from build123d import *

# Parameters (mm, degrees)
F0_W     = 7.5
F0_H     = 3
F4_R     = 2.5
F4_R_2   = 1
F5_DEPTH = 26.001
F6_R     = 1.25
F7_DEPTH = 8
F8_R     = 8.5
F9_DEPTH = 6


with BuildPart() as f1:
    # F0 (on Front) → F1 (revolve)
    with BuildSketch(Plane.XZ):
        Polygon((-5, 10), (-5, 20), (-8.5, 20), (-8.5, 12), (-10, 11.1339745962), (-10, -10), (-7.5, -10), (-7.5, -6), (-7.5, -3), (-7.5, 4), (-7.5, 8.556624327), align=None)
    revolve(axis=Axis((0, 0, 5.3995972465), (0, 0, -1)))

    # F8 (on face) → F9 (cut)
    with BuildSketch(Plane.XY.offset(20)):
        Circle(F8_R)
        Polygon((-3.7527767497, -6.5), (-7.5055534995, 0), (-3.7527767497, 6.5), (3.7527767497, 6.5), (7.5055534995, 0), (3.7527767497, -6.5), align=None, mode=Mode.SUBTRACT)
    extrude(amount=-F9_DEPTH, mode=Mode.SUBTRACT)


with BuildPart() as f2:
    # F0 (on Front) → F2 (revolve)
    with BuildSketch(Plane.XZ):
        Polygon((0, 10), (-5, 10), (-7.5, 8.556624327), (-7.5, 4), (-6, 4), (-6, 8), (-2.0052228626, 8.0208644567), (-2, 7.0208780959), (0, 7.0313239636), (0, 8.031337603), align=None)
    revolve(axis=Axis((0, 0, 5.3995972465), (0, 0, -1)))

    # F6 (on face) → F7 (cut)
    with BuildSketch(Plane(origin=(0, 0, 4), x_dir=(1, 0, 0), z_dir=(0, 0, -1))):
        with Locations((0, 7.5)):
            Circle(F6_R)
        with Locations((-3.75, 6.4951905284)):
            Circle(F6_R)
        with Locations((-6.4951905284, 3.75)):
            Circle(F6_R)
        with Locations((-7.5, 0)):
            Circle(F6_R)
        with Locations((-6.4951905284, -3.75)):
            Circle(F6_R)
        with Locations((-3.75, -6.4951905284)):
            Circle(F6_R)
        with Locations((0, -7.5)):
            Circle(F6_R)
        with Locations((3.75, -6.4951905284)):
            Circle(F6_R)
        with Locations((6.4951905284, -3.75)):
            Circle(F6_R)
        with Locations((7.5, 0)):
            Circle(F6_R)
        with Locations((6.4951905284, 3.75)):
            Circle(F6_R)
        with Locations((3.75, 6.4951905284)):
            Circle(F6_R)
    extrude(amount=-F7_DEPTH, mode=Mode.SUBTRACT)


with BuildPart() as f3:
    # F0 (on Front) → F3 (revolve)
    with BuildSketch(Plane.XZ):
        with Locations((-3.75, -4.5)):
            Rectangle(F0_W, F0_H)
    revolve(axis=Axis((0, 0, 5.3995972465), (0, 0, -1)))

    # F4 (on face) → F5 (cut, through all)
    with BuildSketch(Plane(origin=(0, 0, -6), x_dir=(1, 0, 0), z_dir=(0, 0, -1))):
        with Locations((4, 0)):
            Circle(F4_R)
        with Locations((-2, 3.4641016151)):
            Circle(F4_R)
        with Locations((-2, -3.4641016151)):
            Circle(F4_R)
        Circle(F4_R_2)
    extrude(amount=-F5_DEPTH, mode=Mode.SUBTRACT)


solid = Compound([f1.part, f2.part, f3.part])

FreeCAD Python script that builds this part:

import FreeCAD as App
import Part
import Sketcher
Q = App.Units.Quantity


def add_polygon(sketch, points):
    """Adds a closed chain of lines whose ends are joined by coincident constraints."""
    first, n = sketch.GeometryCount, len(points)
    for a, b in zip(points, points[1:] + points[:1]):
        sketch.addGeometry(Part.LineSegment(App.Vector(*a, 0), App.Vector(*b, 0)), False)
    for i in range(n):
        sketch.addConstraint(Sketcher.Constraint("Coincident", first + i, 2, first + (i + 1) % n, 1))

doc = App.newDocument("Part")
body = doc.addObject("PartDesign::Body", "Body")

# Sketch on XZ plane
sketch1 = body.newObject("Sketcher::SketchObject", "Sketch")
sketch1.AttachmentSupport = (doc.getObject("XZ_Plane"), [""])
sketch1.MapMode = "FlatFace"
add_polygon(sketch1, [(-5, 10), (-5, 20), (-8.5, 20), (-8.5, 12), (-10, 11.1), (-10, -10), (-7.5, -10), (-7.5, 8.6)])  # lines 0-7
sketch1.addConstraint([
    Sketcher.Constraint("Vertical", 0),
    Sketcher.Constraint("Horizontal", 1),
    Sketcher.Constraint("Vertical", 2),
    Sketcher.Constraint("Vertical", 4),
    Sketcher.Constraint("Horizontal", 5),
    Sketcher.Constraint("Vertical", 6),
    Sketcher.Constraint("Parallel", 3, 7),
    Sketcher.Constraint("DistanceY", 0, 1, 0, 2, Q("10 mm")),
    Sketcher.Constraint("DistanceY", 2, 2, 2, 1, Q("8 mm")),
    Sketcher.Constraint("Angle", 3, Q("-150 deg")),
    Sketcher.Constraint("DistanceX", 1, 2, 1, 1, Q("3.5 mm")),
    Sketcher.Constraint("DistanceX", 5, 1, 5, 2, Q("2.5 mm")),
    Sketcher.Constraint("DistanceX", 0, 2, -1, 1, Q("5 mm")),
    Sketcher.Constraint("DistanceY", -1, 1, 0, 2, Q("20 mm")),
    Sketcher.Constraint("DistanceX", 3, 2, -1, 1, Q("10 mm")),
    Sketcher.Constraint("DistanceY", 4, 2, -1, 1, Q("10 mm")),
])
revolution = body.newObject("PartDesign::Revolution", "Revolution")
revolution.Profile = sketch1
revolution.ReferenceAxis = (sketch1, ["V_Axis"])
revolution.Angle = 360

# Sketch on XY plane
sketch2 = body.newObject("Sketcher::SketchObject", "Sketch001")
sketch2.AttachmentSupport = (doc.getObject("XY_Plane"), [""])
sketch2.MapMode = "FlatFace"
sketch2.AttachmentOffset = App.Placement(App.Vector(0, 0, 20), App.Rotation())
sketch2.addGeometry(Part.Circle(App.Vector(0, 0, 0), App.Vector(0, 0, 1), 8), False)  # 0
add_polygon(sketch2, [(4, -6), (-4, -6), (-8, 0), (-4, 6), (4, 6), (8, 0)])  # lines 1-6
sketch2.addConstraint([
    Sketcher.Constraint("Horizontal", 1),
    Sketcher.Constraint("Horizontal", 4),
    Sketcher.Constraint("Coincident", 0, 3, -1, 1),
    Sketcher.Constraint("Symmetric", 1, 2, 4, 2, -1, 1),
    Sketcher.Constraint("Symmetric", 2, 2, 5, 2, -1, 1),
    Sketcher.Constraint("PointOnObject", 2, 2, -1),
    Sketcher.Constraint("Parallel", 3, 6),
    Sketcher.Constraint("Vertical", 1, 2, 3, 2),
    Sketcher.Constraint("Diameter", 0, Q("17 mm")),
    Sketcher.Constraint("Angle", 2, Q("120 deg")),
    Sketcher.Constraint("DistanceY", 1, 2, 3, 2, Q("13 mm")),
    Sketcher.Constraint("DistanceX", 1, 2, 1, 1, Q("7.505554 mm")),
])
pocket1 = body.newObject("PartDesign::Pocket", "Pocket")
pocket1.Profile = sketch2
pocket1.Length = 6
body2 = doc.addObject("PartDesign::Body", "Body001")

# Sketch on XZ plane
sketch3 = body2.newObject("Sketcher::SketchObject", "Sketch002")
sketch3.AttachmentSupport = (doc.getObject("XZ_Plane001"), [""])
sketch3.MapMode = "FlatFace"
add_polygon(sketch3, [(0, 10), (-5, 10), (-7.5, 8.6), (-7.5, 4), (-6, 4), (-6, 8), (-2, 8), (-2, 7), (0, 7)])  # lines 0-8
sketch3.addConstraint([
    Sketcher.Constraint("Horizontal", 0),
    Sketcher.Constraint("Vertical", 2),
    Sketcher.Constraint("Horizontal", 3),
    Sketcher.Constraint("Vertical", 4),
    Sketcher.Constraint("Vertical", 8),
    Sketcher.Constraint("PointOnObject", 7, 2, -2),
    Sketcher.Constraint("Perpendicular", 5, 6),
    Sketcher.Constraint("Perpendicular", 6, 7),
    Sketcher.Constraint("DistanceX", 0, 2, 0, 1, Q("5 mm")),
    Sketcher.Constraint("DistanceY", 4, 1, 4, 2, Q("4 mm")),
    Sketcher.Constraint("Angle", 1, Q("-150 deg")),
    Sketcher.Constraint("Distance", 6, Q("1 mm")),
    Sketcher.Constraint("DistanceX", 3, 1, 3, 2, Q("1.5 mm")),
    Sketcher.Constraint("DistanceY", -1, 1, 0, 2, Q("10 mm")),
    Sketcher.Constraint("DistanceY", -1, 1, 2, 2, Q("4 mm")),
    Sketcher.Constraint("DistanceX", 3, 2, -1, 1, Q("6 mm")),
    Sketcher.Constraint("DistanceX", 6, 2, -1, 1, Q("2 mm")),
    Sketcher.Constraint("Distance", 5, Q("3.994832 mm")),
])
revolution2 = body2.newObject("PartDesign::Revolution", "Revolution001")
revolution2.Profile = sketch3
revolution2.ReferenceAxis = (sketch3, ["V_Axis"])
revolution2.Angle = 360

# Sketch on XY plane
sketch4 = body2.newObject("Sketcher::SketchObject", "Sketch003")
sketch4.AttachmentSupport = (doc.getObject("XY_Plane001"), [""])
sketch4.MapMode = "FlatFace"
sketch4.AttachmentOffset = App.Placement(App.Vector(0, 0, 4), App.Rotation())
sketch4.addGeometry([
    Part.Circle(App.Vector(0, -7.5, 0), App.Vector(0, 0, 1), 1.2),  # 0
    Part.Circle(App.Vector(-3.8, -6.5, 0), App.Vector(0, 0, 1), 1.2),  # 1
    Part.Circle(App.Vector(-6.5, -3.8, 0), App.Vector(0, 0, 1), 1.2),  # 2
    Part.Circle(App.Vector(-7.5, 0, 0), App.Vector(0, 0, 1), 1.2),  # 3
    Part.Circle(App.Vector(-6.5, 3.8, 0), App.Vector(0, 0, 1), 1.2),  # 4
    Part.Circle(App.Vector(-3.8, 6.5, 0), App.Vector(0, 0, 1), 1.2),  # 5
    Part.Circle(App.Vector(0, 7.5, 0), App.Vector(0, 0, 1), 1.2),  # 6
    Part.Circle(App.Vector(3.8, 6.5, 0), App.Vector(0, 0, 1), 1.2),  # 7
    Part.Circle(App.Vector(6.5, 3.8, 0), App.Vector(0, 0, 1), 1.2),  # 8
    Part.Circle(App.Vector(7.5, 0, 0), App.Vector(0, 0, 1), 1.2),  # 9
    Part.Circle(App.Vector(6.5, -3.8, 0), App.Vector(0, 0, 1), 1.2),  # 10
    Part.Circle(App.Vector(3.8, -6.5, 0), App.Vector(0, 0, 1), 1.2),  # 11
], False)
sketch4.addConstraint([
    Sketcher.Constraint("Equal", 0, 1),
    Sketcher.Constraint("Equal", 1, 2),
    Sketcher.Constraint("Equal", 2, 3),
    Sketcher.Constraint("Equal", 3, 4),
    Sketcher.Constraint("Equal", 4, 5),
    Sketcher.Constraint("Equal", 5, 6),
    Sketcher.Constraint("Equal", 6, 7),
    Sketcher.Constraint("Equal", 7, 8),
    Sketcher.Constraint("Equal", 8, 9),
    Sketcher.Constraint("Equal", 9, 10),
    Sketcher.Constraint("Equal", 10, 11),
    Sketcher.Constraint("Symmetric", 0, 3, 6, 3, -1, 1),
    Sketcher.Constraint("Symmetric", 1, 3, 7, 3, -1, 1),
    Sketcher.Constraint("Symmetric", 2, 3, 8, 3, -1, 1),
    Sketcher.Constraint("Symmetric", 3, 3, 9, 3, -1, 1),
    Sketcher.Constraint("Symmetric", 4, 3, 10, 3, -1, 1),
    Sketcher.Constraint("Symmetric", 5, 3, 11, 3, -1, 1),
    Sketcher.Constraint("Symmetric", 5, 3, 7, 3, -2),
    Sketcher.Constraint("Symmetric", 4, 3, 8, 3, -2),
    Sketcher.Constraint("PointOnObject", 0, 3, -2),
    Sketcher.Constraint("PointOnObject", 3, 3, -1),
    Sketcher.Constraint("Diameter", 0, Q("2.5 mm")),
    Sketcher.Constraint("DistanceY", 0, 3, -1, 1, Q("7.5 mm")),
    Sketcher.Constraint("DistanceX", 3, 3, -1, 1, Q("7.5 mm")),
    Sketcher.Constraint("DistanceY", 2, 3, 4, 3, Q("7.5 mm")),
    Sketcher.Constraint("DistanceX", 5, 3, 7, 3, Q("7.5 mm")),
    Sketcher.Constraint("DistanceY", 1, 3, -1, 1, Q("6.495191 mm")),
    Sketcher.Constraint("DistanceX", 2, 3, -1, 1, Q("6.495191 mm")),
])
pocket2 = body2.newObject("PartDesign::Pocket", "Pocket001")
pocket2.Profile = sketch4
pocket2.Length = 8
pocket2.Reversed = True
body3 = doc.addObject("PartDesign::Body", "Body002")

# Sketch on XZ plane
sketch5 = body3.newObject("Sketcher::SketchObject", "Sketch004")
sketch5.AttachmentSupport = (doc.getObject("XZ_Plane002"), [""])
sketch5.MapMode = "FlatFace"
add_polygon(sketch5, [(-7.5, -3), (-7.5, -6), (0, -6), (0, -3)])  # lines 0-3
sketch5.addConstraint([
    Sketcher.Constraint("Vertical", 0),
    Sketcher.Constraint("Horizontal", 1),
    Sketcher.Constraint("Vertical", 2),
    Sketcher.Constraint("Horizontal", 3),
    Sketcher.Constraint("PointOnObject", 1, 2, -2),
    Sketcher.Constraint("DistanceY", 0, 2, 0, 1, Q("3 mm")),
    Sketcher.Constraint("DistanceX", 1, 1, 1, 2, Q("7.5 mm")),
    Sketcher.Constraint("DistanceY", 0, 2, -1, 1, Q("6 mm")),
])
revolution3 = body3.newObject("PartDesign::Revolution", "Revolution002")
revolution3.Profile = sketch5
revolution3.ReferenceAxis = (sketch5, ["V_Axis"])
revolution3.Angle = 360

# Sketch on XY plane
sketch6 = body3.newObject("Sketcher::SketchObject", "Sketch005")
sketch6.AttachmentSupport = (doc.getObject("XY_Plane002"), [""])
sketch6.MapMode = "FlatFace"
sketch6.AttachmentOffset = App.Placement(App.Vector(0, 0, -6), App.Rotation())
sketch6.addGeometry([
    Part.Circle(App.Vector(4, 0, 0), App.Vector(0, 0, 1), 2.5),
    Part.Circle(App.Vector(-2, -3.5, 0), App.Vector(0, 0, 1), 2.5),
    Part.Circle(App.Vector(-2, 3.5, 0), App.Vector(0, 0, 1), 2.5),
    Part.Circle(App.Vector(0, 0, 0), App.Vector(0, 0, 1), 1),
], False)
sketch6.addConstraint([
    Sketcher.Constraint("Coincident", 3, 3, -1, 1),
    Sketcher.Constraint("Equal", 0, 1),
    Sketcher.Constraint("Equal", 1, 2),
    Sketcher.Constraint("Symmetric", 1, 3, 2, 3, -1),
    Sketcher.Constraint("PointOnObject", 0, 3, -1),
    Sketcher.Constraint("Diameter", 0, Q("5 mm")),
    Sketcher.Constraint("Diameter", 3, Q("2 mm")),
    Sketcher.Constraint("DistanceX", -1, 1, 0, 3, Q("4 mm")),
    Sketcher.Constraint("DistanceX", 1, 3, -1, 1, Q("2 mm")),
    Sketcher.Constraint("DistanceY", 1, 3, -1, 1, Q("3.464102 mm")),
])
pocket3 = body3.newObject("PartDesign::Pocket", "Pocket002")
pocket3.Profile = sketch6
pocket3.Type = "ThroughAll"
pocket3.Reversed = True

doc.recompute()
